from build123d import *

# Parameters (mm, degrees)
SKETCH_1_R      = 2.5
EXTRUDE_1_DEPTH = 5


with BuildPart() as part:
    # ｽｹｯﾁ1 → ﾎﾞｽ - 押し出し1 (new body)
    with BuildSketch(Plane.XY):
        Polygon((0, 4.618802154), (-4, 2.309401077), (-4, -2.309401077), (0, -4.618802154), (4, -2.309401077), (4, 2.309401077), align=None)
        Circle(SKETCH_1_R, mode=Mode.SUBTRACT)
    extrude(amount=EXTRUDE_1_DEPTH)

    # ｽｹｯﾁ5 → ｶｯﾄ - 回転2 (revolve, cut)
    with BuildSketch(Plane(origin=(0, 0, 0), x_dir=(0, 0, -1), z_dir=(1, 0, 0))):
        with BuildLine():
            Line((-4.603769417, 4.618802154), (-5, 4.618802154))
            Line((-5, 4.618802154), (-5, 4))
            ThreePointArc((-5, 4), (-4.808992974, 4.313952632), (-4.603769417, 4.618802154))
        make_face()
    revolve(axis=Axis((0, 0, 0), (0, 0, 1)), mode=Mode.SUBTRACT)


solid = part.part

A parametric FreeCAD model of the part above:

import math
import FreeCAD as App
import Part
import Sketcher
from FreeCAD import Vector
Q = App.Units.Quantity

doc = App.newDocument("Part")
body = doc.addObject("PartDesign::Body", "Body")

sketch1 = body.newObject("Sketcher::SketchObject", "Sketch")
sketch1.AttachmentSupport = (doc.getObject("XY_Plane"), [""])
sketch1.MapMode = "FlatFace"
sketch1.addGeometry([
    Part.LineSegment(Vector(0, 4.6, 0), Vector(-4, 2.3, 0)),
    Part.LineSegment(Vector(-4, 2.3, 0), Vector(-4, -2.3, 0)),
    Part.LineSegment(Vector(-4, -2.3, 0), Vector(0, -4.6, 0)),
    Part.LineSegment(Vector(0, -4.6, 0), Vector(4, -2.3, 0)),
    Part.LineSegment(Vector(4, -2.3, 0), Vector(4, 2.3, 0)),
    Part.LineSegment(Vector(4, 2.3, 0), Vector(0, 4.6, 0)),
    Part.Circle(Vector(0, 0, 0), Vector(0, 0, 1), 2.5),
], False)
sketch1.addConstraint([
    Sketcher.Constraint("Coincident", 0, 2, 1, 1),
    Sketcher.Constraint("Coincident", 1, 2, 2, 1),
    Sketcher.Constraint("Coincident", 2, 2, 3, 1),
    Sketcher.Constraint("Coincident", 3, 2, 4, 1),
    Sketcher.Constraint("Coincident", 4, 2, 5, 1),
    Sketcher.Constraint("Coincident", 5, 2, 0, 1),
    Sketcher.Constraint("Vertical", 1),
    Sketcher.Constraint("Vertical", 4),
    Sketcher.Constraint("Coincident", 6, 3, -1, 1),
    Sketcher.Constraint("Symmetric", 0, 2, 3, 2, -1, 1),
    Sketcher.Constraint("Symmetric", 2, 2, 5, 2, -1, 1),
    Sketcher.Constraint("PointOnObject", 2, 2, -2),
    Sketcher.Constraint("Parallel", 2, 5),
    Sketcher.Constraint("Horizontal", 1, 2, 3, 2),
    Sketcher.Constraint("Diameter", 6, 5.0),
    Sketcher.Constraint("Angle", 0, Q("-150 deg")),
    Sketcher.Constraint("DistanceX", 0, 2, -1, 1, 4.0),
    Sketcher.Constraint("DistanceY", -1, 1, 0, 2, 2.309401),
])
pad1 = body.newObject("PartDesign::Pad", "Pad")
pad1.Profile = sketch1
pad1.Length = 5

sketch2 = body.newObject("Sketcher::SketchObject", "Sketch001")
sketch2.AttachmentSupport = (doc.getObject("YZ_Plane"), [""])
sketch2.MapMode = "FlatFace"
sketch2.addGeometry([
    Part.LineSegment(Vector(4.62, 4.6, 0), Vector(4.62, 5, 0)),
    Part.LineSegment(Vector(4.62, 5, 0), Vector(4, 5, 0)),
    Part.ArcOfCircle(Part.Circle(Vector(0, -1.93, 0), Vector(0, 0, 1), 8), math.radians(54.74), math.radians(60)),
], False)
sketch2.addConstraint([
    Sketcher.Constraint("Coincident", 0, 2, 1, 1),
    Sketcher.Constraint("Coincident", 1, 2, 2, 2),
    Sketcher.Constraint("Coincident", 2, 1, 0, 1),
    Sketcher.Constraint("Vertical", 0),
    Sketcher.Constraint("Horizontal", 1),
    Sketcher.Constraint("PointOnObject", 2, 3, -2),
    Sketcher.Constraint("Radius", 2, 8.0),
    Sketcher.Constraint("DistanceY", -1, 1, 0, 2, 5.0),
    Sketcher.Constraint("DistanceX", -1, 1, 1, 2, 4.0),
    Sketcher.Constraint("DistanceY", 0, 1, 0, 2, 0.396231),
])
groove = body.newObject("PartDesign::Groove", "Groove")
groove.Profile = sketch2
groove.ReferenceAxis = (sketch2, ["V_Axis"])
groove.Angle = 360

doc.recompute()
